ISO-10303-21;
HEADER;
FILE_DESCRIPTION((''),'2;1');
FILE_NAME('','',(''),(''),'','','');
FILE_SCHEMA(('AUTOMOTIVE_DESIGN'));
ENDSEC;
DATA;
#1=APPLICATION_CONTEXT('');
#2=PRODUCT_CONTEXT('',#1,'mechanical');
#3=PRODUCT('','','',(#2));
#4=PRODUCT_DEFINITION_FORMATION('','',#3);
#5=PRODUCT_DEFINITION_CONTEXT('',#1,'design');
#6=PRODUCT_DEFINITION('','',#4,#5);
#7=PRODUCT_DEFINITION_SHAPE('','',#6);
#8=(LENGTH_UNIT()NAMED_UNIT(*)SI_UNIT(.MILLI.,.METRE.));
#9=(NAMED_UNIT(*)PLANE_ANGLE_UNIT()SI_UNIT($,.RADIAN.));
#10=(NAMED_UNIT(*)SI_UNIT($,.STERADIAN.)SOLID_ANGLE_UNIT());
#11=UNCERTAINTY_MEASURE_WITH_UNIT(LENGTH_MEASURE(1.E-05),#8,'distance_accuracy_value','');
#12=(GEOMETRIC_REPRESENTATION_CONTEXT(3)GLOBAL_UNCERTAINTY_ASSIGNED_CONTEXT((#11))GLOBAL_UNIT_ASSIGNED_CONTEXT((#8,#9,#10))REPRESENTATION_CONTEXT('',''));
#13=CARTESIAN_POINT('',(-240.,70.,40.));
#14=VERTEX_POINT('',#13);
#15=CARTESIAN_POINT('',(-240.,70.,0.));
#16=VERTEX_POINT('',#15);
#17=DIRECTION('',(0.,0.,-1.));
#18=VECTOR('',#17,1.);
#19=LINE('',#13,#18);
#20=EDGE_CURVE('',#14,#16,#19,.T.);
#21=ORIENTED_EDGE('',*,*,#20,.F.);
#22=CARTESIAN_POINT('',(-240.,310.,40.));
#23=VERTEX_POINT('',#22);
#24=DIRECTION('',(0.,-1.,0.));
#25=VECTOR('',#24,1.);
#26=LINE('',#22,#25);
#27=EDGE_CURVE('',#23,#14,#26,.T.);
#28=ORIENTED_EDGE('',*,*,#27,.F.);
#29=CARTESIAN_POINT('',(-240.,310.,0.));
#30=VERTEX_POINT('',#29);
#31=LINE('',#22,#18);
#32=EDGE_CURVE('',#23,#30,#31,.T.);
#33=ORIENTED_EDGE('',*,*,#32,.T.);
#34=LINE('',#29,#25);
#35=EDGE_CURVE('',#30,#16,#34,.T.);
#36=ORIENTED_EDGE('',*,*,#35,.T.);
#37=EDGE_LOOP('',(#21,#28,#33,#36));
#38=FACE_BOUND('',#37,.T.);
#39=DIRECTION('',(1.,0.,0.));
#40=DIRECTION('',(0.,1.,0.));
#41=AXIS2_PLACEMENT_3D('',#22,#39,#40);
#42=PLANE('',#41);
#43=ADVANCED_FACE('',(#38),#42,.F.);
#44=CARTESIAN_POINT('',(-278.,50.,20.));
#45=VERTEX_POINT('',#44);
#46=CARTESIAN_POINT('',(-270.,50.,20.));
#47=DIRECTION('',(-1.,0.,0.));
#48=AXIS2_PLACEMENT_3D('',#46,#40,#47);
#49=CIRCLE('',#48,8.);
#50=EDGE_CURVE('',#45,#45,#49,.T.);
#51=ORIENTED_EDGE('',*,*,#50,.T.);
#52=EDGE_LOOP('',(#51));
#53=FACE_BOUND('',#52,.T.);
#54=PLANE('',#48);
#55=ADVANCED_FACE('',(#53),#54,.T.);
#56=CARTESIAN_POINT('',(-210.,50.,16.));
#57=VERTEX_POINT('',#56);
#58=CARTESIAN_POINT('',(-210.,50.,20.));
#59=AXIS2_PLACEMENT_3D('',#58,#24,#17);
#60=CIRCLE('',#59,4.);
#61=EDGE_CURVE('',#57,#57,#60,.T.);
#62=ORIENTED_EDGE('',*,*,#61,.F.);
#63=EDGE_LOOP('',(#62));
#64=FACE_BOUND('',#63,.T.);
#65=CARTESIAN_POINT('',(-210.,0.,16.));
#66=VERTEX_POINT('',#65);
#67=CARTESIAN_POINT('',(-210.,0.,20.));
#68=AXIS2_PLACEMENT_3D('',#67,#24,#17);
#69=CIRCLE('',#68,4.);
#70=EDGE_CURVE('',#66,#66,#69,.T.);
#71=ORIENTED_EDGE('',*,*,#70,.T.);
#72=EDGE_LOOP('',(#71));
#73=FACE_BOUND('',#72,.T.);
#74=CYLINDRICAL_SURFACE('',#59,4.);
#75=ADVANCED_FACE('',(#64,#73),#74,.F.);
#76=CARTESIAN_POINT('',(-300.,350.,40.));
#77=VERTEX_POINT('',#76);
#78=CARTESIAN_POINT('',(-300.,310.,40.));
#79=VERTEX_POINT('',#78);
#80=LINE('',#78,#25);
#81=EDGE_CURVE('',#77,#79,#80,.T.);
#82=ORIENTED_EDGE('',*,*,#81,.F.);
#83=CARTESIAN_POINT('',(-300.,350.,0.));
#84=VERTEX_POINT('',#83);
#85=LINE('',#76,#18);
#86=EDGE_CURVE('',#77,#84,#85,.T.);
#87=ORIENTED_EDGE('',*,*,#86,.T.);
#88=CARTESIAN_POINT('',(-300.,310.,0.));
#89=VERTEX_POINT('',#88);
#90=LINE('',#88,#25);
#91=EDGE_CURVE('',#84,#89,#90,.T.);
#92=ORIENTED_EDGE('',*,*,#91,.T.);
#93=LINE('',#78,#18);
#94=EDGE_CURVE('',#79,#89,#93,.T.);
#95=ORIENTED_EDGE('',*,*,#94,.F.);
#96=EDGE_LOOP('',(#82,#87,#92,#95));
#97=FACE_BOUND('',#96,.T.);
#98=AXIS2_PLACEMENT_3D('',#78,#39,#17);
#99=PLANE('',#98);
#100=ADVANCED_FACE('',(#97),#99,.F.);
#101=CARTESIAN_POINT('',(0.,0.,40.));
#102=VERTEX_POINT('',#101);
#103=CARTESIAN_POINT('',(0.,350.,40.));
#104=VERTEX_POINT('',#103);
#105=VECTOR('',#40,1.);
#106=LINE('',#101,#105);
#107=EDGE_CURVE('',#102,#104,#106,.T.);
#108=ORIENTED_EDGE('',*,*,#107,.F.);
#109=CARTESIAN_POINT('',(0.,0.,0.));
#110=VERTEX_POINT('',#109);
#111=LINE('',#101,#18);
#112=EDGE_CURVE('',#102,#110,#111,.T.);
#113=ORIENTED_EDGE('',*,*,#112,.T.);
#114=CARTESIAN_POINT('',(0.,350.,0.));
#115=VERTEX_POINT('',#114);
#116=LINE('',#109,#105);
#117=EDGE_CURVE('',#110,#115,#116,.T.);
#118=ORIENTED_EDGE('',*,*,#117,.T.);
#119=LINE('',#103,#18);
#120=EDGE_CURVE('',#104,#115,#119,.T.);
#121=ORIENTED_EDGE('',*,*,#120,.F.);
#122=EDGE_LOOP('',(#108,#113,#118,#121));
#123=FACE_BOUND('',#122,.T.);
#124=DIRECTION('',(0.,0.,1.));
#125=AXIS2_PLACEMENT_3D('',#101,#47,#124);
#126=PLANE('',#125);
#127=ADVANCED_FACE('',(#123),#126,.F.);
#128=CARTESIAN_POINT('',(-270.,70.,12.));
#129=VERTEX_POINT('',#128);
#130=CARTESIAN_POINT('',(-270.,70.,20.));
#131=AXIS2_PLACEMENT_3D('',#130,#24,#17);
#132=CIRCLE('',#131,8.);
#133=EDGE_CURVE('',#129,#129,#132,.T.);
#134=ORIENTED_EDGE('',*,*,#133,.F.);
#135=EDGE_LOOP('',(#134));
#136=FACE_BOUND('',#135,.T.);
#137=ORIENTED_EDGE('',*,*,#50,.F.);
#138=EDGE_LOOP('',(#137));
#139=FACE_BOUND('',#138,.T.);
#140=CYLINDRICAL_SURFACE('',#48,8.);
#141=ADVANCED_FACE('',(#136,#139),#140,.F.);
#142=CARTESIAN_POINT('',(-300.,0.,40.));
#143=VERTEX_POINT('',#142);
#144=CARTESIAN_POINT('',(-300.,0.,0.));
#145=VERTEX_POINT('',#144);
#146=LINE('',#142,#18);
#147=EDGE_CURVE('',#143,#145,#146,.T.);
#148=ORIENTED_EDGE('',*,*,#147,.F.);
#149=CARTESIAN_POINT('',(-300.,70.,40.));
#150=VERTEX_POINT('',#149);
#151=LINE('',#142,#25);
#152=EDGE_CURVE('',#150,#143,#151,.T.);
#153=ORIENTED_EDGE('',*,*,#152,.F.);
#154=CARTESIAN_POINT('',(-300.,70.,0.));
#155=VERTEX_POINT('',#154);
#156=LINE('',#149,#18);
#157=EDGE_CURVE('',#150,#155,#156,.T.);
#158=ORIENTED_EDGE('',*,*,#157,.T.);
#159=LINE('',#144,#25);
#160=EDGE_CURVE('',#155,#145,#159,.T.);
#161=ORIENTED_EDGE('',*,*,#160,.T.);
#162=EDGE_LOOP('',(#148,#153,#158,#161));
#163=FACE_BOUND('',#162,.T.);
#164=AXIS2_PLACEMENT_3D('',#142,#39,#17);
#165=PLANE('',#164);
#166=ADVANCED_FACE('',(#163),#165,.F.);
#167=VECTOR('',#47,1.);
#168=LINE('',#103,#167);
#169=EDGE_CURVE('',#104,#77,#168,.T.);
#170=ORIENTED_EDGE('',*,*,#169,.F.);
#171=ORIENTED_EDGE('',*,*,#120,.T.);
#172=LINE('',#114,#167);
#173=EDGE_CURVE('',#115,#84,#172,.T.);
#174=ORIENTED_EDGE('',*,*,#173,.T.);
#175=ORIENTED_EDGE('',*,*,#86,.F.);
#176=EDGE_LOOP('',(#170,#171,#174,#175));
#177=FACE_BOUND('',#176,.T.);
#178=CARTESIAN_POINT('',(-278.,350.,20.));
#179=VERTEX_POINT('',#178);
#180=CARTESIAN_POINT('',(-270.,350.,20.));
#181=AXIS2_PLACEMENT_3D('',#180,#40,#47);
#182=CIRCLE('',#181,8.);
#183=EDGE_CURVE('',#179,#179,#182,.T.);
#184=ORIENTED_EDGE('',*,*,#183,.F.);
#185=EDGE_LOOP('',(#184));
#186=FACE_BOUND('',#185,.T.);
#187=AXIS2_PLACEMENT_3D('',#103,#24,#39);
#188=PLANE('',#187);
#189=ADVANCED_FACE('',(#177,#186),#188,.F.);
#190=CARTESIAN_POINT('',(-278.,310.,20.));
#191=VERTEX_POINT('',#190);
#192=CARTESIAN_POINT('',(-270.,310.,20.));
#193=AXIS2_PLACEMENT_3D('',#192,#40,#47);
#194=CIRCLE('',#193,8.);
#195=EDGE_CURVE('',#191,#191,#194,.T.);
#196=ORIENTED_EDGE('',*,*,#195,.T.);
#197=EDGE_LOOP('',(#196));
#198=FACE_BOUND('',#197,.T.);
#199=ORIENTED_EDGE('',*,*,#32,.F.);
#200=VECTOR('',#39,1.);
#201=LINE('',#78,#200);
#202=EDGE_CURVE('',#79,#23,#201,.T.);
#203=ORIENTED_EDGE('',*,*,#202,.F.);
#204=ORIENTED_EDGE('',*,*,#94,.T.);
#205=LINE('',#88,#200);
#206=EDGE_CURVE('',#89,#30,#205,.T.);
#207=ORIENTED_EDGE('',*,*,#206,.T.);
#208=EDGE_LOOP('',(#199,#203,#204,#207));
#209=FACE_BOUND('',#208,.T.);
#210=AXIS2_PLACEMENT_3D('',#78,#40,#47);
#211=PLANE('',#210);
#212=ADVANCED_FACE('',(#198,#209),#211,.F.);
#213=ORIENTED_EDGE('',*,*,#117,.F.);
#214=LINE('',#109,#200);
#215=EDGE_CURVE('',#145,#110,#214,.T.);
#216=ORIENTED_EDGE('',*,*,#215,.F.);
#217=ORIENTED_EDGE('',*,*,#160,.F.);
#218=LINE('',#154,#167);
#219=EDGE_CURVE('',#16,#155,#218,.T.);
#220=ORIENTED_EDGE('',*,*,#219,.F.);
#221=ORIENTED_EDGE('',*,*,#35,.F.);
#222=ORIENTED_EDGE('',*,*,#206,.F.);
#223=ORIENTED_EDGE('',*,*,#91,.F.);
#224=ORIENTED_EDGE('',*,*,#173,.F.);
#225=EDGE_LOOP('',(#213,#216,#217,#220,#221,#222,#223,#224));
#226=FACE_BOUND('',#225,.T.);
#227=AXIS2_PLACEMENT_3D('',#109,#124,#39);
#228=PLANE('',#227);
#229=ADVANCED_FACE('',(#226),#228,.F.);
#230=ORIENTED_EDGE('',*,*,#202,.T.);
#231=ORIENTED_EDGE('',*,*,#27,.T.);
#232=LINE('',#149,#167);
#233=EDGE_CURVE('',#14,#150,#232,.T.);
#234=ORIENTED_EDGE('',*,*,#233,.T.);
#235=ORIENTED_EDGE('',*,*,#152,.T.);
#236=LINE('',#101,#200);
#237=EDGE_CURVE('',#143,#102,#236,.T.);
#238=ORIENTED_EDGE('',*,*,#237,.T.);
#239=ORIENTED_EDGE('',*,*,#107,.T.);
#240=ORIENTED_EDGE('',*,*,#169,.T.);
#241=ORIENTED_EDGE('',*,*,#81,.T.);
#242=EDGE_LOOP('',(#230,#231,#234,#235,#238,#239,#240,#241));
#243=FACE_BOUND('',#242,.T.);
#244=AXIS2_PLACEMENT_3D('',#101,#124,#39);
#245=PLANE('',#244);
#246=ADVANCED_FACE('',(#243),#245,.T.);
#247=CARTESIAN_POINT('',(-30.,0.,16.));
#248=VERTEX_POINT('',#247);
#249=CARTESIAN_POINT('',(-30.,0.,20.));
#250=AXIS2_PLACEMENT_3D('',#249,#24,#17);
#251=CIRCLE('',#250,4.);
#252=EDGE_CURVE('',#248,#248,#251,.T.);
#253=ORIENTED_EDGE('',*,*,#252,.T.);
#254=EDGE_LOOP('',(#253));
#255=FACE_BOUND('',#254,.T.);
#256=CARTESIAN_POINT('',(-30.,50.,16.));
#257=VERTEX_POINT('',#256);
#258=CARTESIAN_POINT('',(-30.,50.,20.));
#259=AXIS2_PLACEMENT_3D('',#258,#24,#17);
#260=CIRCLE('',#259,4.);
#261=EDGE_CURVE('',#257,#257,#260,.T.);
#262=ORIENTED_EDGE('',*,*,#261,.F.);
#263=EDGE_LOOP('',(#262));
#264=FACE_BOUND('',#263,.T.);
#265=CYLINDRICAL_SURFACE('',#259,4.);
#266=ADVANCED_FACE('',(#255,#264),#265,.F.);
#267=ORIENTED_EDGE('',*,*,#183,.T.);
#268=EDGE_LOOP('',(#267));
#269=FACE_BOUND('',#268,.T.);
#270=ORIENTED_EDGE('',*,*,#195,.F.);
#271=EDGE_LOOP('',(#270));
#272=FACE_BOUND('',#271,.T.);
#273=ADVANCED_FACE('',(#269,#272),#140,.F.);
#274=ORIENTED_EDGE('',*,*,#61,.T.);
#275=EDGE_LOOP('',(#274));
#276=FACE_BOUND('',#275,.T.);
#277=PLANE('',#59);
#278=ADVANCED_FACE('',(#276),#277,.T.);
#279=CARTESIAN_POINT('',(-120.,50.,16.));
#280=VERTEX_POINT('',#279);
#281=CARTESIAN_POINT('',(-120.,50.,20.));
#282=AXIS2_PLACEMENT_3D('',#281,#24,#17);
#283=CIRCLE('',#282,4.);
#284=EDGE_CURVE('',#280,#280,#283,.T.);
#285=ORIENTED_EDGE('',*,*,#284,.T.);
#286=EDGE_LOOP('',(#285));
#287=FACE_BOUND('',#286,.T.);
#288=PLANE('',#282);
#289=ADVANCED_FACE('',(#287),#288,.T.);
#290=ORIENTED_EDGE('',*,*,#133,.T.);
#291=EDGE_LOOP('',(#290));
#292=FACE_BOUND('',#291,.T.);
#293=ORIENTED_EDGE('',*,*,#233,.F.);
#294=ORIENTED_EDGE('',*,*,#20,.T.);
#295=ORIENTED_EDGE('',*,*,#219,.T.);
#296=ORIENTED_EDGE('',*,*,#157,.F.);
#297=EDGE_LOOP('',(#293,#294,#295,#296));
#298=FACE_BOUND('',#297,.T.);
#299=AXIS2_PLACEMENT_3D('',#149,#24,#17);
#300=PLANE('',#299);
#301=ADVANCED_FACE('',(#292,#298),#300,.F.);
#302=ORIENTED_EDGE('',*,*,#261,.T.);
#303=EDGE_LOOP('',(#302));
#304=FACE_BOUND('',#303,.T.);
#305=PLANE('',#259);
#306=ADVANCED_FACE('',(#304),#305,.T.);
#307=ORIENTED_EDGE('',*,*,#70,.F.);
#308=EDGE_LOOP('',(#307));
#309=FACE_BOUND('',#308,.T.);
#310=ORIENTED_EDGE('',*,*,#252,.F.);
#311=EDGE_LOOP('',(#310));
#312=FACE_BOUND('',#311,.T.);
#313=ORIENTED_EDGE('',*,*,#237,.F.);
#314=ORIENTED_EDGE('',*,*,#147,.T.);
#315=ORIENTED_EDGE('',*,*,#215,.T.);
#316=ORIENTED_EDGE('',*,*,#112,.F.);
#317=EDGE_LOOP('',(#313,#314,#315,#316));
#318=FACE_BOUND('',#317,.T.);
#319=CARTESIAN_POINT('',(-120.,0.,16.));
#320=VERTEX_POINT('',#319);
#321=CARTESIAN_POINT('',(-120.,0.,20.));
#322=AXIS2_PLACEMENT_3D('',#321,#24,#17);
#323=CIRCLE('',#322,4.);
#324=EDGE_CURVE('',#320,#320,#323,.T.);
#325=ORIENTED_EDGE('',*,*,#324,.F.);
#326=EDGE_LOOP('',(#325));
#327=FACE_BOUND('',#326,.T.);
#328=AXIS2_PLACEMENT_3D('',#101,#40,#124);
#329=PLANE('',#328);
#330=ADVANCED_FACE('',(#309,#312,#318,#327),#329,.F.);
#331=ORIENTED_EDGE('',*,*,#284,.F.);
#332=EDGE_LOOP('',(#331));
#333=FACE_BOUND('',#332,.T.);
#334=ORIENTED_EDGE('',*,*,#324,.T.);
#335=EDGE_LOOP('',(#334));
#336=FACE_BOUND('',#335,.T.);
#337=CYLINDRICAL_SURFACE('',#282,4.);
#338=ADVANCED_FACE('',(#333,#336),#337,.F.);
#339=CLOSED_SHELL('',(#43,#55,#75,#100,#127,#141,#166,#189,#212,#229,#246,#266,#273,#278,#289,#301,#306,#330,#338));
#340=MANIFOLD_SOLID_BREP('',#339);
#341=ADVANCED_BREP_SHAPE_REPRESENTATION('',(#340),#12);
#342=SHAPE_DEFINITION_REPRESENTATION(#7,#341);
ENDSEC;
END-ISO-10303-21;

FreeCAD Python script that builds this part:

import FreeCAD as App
import Part
import Sketcher
from FreeCAD import Vector
Q = App.Units.Quantity


def add_polygon(sketch, points):
    """Adds a closed chain of lines whose ends are joined by coincident constraints."""
    first, n = sketch.GeometryCount, len(points)
    for a, b in zip(points, points[1:] + points[:1]):
        sketch.addGeometry(Part.LineSegment(App.Vector(*a, 0), App.Vector(*b, 0)), False)
    for i in range(n):
        sketch.addConstraint(Sketcher.Constraint("Coincident", first + i, 2, first + (i + 1) % n, 1))

doc = App.newDocument("Part")
body = doc.addObject("PartDesign::Body", "Body")

sketch1 = doc.addObject("Sketcher::SketchObject", "Sketch")
body.addObject(sketch1)
sketch1.AttachmentSupport = (doc.XY_Plane, [""])
sketch1.MapMode = "FlatFace"
add_polygon(sketch1, [(-300, 350), (-300, 310), (-240, 310), (-240, 70), (-300, 70), (-300, 0), (0, 0), (0, 350)])
sketch1.addConstraint(Sketcher.Constraint("Vertical", 0))
sketch1.addConstraint(Sketcher.Constraint("Horizontal", 1))
sketch1.addConstraint(Sketcher.Constraint("Vertical", 2))
sketch1.addConstraint(Sketcher.Constraint("Horizontal", 3))
sketch1.addConstraint(Sketcher.Constraint("Vertical", 4))
sketch1.addConstraint(Sketcher.Constraint("Horizontal", 5))
sketch1.addConstraint(Sketcher.Constraint("Vertical", 6))
sketch1.addConstraint(Sketcher.Constraint("Horizontal", 7))
sketch1.addConstraint(Sketcher.Constraint("Coincident", 5, 2, -1, 1))
sketch1.addConstraint(Sketcher.Constraint("Vertical", 0, 2, 3, 2))
sketch1.addConstraint(Sketcher.Constraint("DistanceX", 1, 1, 1, 2, Q("60 mm")))
sketch1.addConstraint(Sketcher.Constraint("DistanceX", 5, 1, 5, 2, Q("300 mm")))
sketch1.addConstraint(Sketcher.Constraint("DistanceY", 0, 2, 0, 1, Q("40 mm")))
sketch1.addConstraint(Sketcher.Constraint("DistanceY", 2, 2, 2, 1, Q("240 mm")))
sketch1.addConstraint(Sketcher.Constraint("DistanceY", 4, 2, 4, 1, Q("70 mm")))
pad1 = doc.addObject("PartDesign::Pad", "Pad")
body.addObject(pad1)
pad1.Profile = sketch1
pad1.Length = 40

sketch2 = doc.addObject("Sketcher::SketchObject", "Sketch001")
body.addObject(sketch2)
sketch2.AttachmentSupport = (doc.XZ_Plane, [""])
sketch2.MapMode = "FlatFace"
sketch2.AttachmentOffset = App.Placement(Vector(0, 0, -350), App.Rotation())
sketch2.addGeometry(Part.Circle(Vector(-270, 20, 0), Vector(0, 0, 1), 8), False)
sketch2.addConstraint(Sketcher.Constraint("Diameter", 0, Q("16 mm")))
sketch2.addConstraint(Sketcher.Constraint("DistanceX", 0, 3, -1, 1, Q("270 mm")))
sketch2.addConstraint(Sketcher.Constraint("DistanceY", -1, 1, 0, 3, Q("20 mm")))
pocket1 = doc.addObject("PartDesign::Pocket", "Pocket")
body.addObject(pocket1)
pocket1.Profile = sketch2
pocket1.Length = 300
pocket1.Reversed = True

sketch3 = doc.addObject("Sketcher::SketchObject", "Sketch002")
body.addObject(sketch3)
sketch3.AttachmentSupport = (doc.XZ_Plane, [""])
sketch3.MapMode = "FlatFace"
sketch3.addGeometry(Part.Circle(Vector(-30, 20, 0), Vector(0, 0, 1), 4), False)
sketch3.addGeometry(Part.Circle(Vector(-120, 20, 0), Vector(0, 0, 1), 4), False)
sketch3.addGeometry(Part.Circle(Vector(-210, 20, 0), Vector(0, 0, 1), 4), False)
sketch3.addConstraint(Sketcher.Constraint("Equal", 0, 1))
sketch3.addConstraint(Sketcher.Constraint("Equal", 1, 2))
sketch3.addConstraint(Sketcher.Constraint("Horizontal", 0, 3, 1, 3))
sketch3.addConstraint(Sketcher.Constraint("Horizontal", 1, 3, 2, 3))
sketch3.addConstraint(Sketcher.Constraint("Diameter", 0, Q("8 mm")))
sketch3.addConstraint(Sketcher.Constraint("DistanceX", 0, 3, -1, 1, Q("30 mm")))
sketch3.addConstraint(Sketcher.Constraint("DistanceY", -1, 1, 0, 3, Q("20 mm")))
sketch3.addConstraint(Sketcher.Constraint("DistanceX", 1, 3, -1, 1, Q("120 mm")))
sketch3.addConstraint(Sketcher.Constraint("DistanceX", 2, 3, -1, 1, Q("210 mm")))
pocket2 = doc.addObject("PartDesign::Pocket", "Pocket001")
body.addObject(pocket2)
pocket2.Profile = sketch3
pocket2.Length = 50

doc.recompute()
